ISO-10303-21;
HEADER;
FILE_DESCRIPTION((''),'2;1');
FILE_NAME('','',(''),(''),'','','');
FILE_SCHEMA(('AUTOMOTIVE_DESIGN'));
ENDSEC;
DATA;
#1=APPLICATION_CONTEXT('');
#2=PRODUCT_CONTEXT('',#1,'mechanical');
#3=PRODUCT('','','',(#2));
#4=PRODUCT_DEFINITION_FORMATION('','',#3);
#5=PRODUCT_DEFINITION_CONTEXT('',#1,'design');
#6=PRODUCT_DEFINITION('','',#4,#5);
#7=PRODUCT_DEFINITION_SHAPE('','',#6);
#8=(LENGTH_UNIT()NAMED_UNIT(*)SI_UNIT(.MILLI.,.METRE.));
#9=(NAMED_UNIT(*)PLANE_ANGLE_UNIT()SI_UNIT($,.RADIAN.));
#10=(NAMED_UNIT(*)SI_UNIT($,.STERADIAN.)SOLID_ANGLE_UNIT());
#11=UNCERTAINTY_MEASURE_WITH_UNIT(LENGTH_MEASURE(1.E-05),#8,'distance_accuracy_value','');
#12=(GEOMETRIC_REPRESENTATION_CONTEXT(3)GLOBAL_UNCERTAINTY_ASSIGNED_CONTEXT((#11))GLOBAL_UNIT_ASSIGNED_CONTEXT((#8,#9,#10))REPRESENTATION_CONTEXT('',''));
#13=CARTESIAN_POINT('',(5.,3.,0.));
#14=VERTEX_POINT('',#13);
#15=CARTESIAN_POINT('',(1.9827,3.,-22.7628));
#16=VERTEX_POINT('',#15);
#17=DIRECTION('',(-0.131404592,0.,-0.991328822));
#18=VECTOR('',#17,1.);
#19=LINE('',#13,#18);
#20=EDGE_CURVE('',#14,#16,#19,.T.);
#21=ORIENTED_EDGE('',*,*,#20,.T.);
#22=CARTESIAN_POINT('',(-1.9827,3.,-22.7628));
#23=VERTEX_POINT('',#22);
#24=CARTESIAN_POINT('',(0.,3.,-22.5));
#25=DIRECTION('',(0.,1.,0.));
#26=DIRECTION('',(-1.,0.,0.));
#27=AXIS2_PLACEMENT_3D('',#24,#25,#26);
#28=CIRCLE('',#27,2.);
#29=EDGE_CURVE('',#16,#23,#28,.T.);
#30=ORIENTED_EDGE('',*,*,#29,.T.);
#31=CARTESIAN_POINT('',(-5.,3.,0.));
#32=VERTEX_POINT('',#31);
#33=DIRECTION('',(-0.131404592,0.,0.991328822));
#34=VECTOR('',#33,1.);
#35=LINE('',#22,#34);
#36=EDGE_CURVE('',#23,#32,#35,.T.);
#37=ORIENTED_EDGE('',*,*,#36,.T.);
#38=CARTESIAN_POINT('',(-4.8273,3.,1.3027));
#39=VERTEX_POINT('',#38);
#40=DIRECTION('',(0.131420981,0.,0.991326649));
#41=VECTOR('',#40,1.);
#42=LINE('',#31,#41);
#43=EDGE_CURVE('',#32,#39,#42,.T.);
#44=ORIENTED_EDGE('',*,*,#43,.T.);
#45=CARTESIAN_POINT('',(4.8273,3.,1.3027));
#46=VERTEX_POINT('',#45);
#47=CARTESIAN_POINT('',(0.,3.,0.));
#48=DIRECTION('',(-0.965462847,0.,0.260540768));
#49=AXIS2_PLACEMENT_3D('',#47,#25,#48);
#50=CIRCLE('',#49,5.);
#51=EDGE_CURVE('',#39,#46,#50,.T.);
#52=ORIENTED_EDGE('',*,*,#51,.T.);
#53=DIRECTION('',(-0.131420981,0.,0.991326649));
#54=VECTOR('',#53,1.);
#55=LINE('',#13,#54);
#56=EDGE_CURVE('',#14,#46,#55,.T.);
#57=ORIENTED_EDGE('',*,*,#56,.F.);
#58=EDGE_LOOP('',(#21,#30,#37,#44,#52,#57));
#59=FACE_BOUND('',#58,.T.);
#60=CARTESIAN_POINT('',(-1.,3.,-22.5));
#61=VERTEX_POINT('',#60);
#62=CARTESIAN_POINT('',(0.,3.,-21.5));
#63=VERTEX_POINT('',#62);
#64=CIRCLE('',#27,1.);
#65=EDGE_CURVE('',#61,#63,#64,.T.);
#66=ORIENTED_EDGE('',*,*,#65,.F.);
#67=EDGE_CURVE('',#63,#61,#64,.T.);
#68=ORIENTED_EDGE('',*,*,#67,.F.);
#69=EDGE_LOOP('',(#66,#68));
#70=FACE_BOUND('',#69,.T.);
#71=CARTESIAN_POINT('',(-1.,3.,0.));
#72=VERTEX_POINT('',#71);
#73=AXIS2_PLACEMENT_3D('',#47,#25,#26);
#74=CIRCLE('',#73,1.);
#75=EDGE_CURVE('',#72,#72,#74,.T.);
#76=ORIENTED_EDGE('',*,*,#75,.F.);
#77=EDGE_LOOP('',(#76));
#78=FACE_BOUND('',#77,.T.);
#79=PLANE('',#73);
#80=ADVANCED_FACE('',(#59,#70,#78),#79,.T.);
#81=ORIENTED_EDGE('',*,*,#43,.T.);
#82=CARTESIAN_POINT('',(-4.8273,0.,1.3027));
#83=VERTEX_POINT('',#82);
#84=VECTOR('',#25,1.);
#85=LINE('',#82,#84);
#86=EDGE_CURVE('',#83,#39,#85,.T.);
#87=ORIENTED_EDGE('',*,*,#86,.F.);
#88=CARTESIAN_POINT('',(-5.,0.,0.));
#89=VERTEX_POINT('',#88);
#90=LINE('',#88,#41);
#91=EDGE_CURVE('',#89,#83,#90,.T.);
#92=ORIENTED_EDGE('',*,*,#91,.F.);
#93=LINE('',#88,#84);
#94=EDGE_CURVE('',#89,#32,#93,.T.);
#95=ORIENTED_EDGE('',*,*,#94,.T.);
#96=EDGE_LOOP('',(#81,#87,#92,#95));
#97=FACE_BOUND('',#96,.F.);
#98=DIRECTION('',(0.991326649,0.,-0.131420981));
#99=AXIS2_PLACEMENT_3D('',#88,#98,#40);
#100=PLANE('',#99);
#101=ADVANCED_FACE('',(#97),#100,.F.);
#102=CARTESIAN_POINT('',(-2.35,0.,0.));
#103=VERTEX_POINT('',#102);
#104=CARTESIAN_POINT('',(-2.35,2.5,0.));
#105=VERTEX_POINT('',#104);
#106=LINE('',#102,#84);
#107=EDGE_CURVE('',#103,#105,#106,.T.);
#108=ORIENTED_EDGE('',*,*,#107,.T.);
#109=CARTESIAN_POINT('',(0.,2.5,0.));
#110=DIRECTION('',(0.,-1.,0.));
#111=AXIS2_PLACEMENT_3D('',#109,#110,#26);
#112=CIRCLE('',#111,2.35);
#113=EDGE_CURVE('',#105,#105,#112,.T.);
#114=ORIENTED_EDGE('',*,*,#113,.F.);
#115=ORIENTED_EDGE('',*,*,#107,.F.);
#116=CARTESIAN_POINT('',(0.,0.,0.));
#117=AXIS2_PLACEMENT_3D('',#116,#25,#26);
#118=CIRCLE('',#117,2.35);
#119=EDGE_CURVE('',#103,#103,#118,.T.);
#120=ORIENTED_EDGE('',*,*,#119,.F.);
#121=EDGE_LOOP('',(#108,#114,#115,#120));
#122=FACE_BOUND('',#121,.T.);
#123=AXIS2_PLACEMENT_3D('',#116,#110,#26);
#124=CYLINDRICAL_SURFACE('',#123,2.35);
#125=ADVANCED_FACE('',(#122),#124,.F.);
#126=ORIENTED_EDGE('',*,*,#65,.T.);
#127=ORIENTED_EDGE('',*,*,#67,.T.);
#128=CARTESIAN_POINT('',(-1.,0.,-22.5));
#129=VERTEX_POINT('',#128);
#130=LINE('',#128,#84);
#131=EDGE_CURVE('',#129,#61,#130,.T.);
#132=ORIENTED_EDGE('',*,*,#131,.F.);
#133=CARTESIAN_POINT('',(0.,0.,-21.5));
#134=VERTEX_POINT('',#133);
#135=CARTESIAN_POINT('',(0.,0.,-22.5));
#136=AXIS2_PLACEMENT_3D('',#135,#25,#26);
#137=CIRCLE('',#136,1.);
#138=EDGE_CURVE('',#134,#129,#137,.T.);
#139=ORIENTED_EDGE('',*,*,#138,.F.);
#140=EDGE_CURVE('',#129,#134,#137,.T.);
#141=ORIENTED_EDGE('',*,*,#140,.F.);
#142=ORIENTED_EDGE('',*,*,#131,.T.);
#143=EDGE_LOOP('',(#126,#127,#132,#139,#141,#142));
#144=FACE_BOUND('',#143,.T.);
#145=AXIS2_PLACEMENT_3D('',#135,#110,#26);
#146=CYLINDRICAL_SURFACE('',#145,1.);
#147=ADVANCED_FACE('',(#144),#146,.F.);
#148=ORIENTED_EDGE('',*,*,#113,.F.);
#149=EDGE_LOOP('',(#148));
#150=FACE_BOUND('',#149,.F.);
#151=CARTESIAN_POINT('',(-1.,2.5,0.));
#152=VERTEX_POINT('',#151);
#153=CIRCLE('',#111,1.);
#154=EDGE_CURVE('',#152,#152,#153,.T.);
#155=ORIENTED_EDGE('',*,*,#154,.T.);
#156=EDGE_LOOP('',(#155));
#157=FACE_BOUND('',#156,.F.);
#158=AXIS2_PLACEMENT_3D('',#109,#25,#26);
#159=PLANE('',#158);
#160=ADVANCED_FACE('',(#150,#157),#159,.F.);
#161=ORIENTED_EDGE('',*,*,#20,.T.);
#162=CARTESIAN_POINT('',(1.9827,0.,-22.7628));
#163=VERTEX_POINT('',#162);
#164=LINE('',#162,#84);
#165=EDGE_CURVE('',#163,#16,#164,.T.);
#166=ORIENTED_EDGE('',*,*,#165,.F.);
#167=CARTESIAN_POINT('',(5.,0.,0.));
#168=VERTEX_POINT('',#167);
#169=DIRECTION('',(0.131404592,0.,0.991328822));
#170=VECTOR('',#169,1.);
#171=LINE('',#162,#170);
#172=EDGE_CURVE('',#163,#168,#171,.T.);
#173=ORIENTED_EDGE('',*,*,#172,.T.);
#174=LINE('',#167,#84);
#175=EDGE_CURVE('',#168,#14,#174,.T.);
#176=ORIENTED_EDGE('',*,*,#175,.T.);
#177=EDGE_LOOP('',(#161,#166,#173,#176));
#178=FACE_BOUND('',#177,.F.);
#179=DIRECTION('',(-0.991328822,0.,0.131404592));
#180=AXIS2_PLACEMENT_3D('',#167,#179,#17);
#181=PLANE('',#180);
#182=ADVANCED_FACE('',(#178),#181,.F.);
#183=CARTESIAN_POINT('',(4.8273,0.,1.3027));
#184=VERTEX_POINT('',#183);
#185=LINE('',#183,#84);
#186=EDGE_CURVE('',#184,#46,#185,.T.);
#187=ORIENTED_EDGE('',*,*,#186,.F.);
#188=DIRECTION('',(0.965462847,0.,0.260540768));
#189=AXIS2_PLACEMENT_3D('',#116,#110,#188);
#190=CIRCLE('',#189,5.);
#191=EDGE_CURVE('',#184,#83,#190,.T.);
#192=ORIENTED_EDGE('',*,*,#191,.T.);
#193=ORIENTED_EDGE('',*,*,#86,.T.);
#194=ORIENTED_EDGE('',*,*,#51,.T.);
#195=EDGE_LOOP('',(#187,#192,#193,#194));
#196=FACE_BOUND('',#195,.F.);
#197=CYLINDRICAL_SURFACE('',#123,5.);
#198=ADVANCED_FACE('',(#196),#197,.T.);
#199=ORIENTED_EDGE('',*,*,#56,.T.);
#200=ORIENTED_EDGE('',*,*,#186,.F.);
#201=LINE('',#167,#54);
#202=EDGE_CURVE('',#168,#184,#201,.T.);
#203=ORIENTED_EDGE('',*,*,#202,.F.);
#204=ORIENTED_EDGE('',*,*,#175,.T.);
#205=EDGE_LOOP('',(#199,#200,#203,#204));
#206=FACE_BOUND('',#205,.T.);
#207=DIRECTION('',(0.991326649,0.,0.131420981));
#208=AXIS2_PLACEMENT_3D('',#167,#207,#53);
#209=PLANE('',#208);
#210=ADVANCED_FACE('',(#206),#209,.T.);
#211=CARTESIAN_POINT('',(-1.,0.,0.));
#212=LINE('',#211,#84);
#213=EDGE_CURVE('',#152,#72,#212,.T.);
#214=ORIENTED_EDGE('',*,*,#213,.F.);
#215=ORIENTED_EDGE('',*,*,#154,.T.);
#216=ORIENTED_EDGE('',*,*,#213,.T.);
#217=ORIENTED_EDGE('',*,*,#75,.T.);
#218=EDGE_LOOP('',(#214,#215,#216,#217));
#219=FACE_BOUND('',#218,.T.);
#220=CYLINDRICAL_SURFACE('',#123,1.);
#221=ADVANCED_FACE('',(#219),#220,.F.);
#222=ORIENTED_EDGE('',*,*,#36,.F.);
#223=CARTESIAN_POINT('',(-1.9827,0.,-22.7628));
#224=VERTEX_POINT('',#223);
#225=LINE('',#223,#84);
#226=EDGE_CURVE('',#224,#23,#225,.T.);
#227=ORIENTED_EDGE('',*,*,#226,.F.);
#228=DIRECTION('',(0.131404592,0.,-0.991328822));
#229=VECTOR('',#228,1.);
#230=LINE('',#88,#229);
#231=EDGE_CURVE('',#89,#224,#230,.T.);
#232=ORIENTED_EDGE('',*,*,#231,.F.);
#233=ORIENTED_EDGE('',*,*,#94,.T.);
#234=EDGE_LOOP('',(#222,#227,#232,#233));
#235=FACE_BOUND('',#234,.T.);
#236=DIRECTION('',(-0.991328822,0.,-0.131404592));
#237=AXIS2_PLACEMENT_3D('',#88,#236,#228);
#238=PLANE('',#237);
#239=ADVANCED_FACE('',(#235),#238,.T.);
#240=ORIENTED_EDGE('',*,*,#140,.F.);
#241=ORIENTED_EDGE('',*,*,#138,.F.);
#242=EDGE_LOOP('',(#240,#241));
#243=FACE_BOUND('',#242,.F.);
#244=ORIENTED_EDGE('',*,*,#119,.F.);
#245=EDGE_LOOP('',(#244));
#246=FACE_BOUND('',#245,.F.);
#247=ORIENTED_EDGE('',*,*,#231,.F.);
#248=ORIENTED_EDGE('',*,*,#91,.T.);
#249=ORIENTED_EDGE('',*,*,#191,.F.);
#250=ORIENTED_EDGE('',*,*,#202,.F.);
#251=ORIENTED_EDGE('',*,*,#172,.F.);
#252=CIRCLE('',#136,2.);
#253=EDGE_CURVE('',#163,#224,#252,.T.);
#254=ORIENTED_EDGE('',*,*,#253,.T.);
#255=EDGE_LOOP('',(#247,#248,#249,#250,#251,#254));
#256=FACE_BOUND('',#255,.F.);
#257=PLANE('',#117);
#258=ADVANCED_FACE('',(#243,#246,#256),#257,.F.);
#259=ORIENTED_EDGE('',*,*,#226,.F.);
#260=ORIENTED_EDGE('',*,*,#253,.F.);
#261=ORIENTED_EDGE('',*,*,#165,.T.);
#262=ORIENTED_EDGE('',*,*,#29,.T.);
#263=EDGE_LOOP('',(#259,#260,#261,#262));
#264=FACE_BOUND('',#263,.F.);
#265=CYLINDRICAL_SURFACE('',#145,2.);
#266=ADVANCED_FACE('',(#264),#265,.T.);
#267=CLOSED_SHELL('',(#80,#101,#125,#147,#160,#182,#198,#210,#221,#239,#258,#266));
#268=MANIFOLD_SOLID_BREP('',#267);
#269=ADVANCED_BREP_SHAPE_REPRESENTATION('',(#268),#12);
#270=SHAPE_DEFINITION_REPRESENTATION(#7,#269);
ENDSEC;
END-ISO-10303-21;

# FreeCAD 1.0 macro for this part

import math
import FreeCAD as App
import Part
import Sketcher

doc = App.newDocument("Part")
body = doc.addObject("PartDesign::Body", "Body")

# Sketch on XZ plane
sketch1 = body.newObject("Sketcher::SketchObject", "Sketch")
sketch1.AttachmentSupport = (doc.getObject("XZ_Plane"), [""])
sketch1.MapMode = "FlatFace"
sketch1.addGeometry(Part.ArcOfCircle(Part.Circle(App.Vector(0, 0, 0), App.Vector(0, 0, 1), 5), math.radians(15.102152), math.radians(164.897848)), False)
sketch1.addGeometry(Part.LineSegment(App.Vector(4.8273, 1.3027, 0), App.Vector(5, 0, 0)), False)
sketch1.addGeometry(Part.LineSegment(App.Vector(5, 0, 0), App.Vector(1.9827, -22.7628, 0)), False)
sketch1.addGeometry(Part.ArcOfCircle(Part.Circle(App.Vector(0, -22.5, 0), App.Vector(0, 0, 1), 2), math.radians(-172.449654), math.radians(-7.550346)), False)
sketch1.addGeometry(Part.LineSegment(App.Vector(-1.9827, -22.7628, 0), App.Vector(-5, 0, 0)), False)
sketch1.addGeometry(Part.LineSegment(App.Vector(-5, 0, 0), App.Vector(-4.8273, 1.3027, 0)), False)
sketch1.addGeometry(Part.Circle(App.Vector(0, 0, 0), App.Vector(0, 0, 1), 1), False)
sketch1.addGeometry(Part.Circle(App.Vector(0, -22.5, 0), App.Vector(0, 0, 1), 1), False)
sketch1.addConstraint(Sketcher.Constraint("Coincident", 0, 1, 1, 1))
sketch1.addConstraint(Sketcher.Constraint("Coincident", 1, 2, 2, 1))
sketch1.addConstraint(Sketcher.Constraint("Tangent", 2, 2, 3, 2))
sketch1.addConstraint(Sketcher.Constraint("Tangent", 3, 1, 4, 1))
sketch1.addConstraint(Sketcher.Constraint("Coincident", 4, 2, 5, 1))
sketch1.addConstraint(Sketcher.Constraint("Coincident", 5, 2, 0, 2))
sketch1.addConstraint(Sketcher.Constraint("Coincident", 0, 3, -1, 1))
sketch1.addConstraint(Sketcher.Constraint("Coincident", 6, 3, -1, 1))
sketch1.addConstraint(Sketcher.Constraint("Coincident", 7, 3, 3, 3))
sketch1.addConstraint(Sketcher.Constraint("Equal", 6, 7))
sketch1.addConstraint(Sketcher.Constraint("Symmetric", 1, 2, 4, 2, -1, 1))
sketch1.addConstraint(Sketcher.Constraint("Symmetric", 2, 2, 3, 1, -2))
sketch1.addConstraint(Sketcher.Constraint("Parallel", 1, 4))
sketch1.addConstraint(Sketcher.Constraint("Parallel", 2, 5))
sketch1.addConstraint(Sketcher.Constraint("Diameter", 6, 2.0))
sketch1.addConstraint(Sketcher.Constraint("Radius", 0, 5.0))
sketch1.addConstraint(Sketcher.Constraint("Radius", 3, 2.0))
sketch1.addConstraint(Sketcher.Constraint("DistanceX", 4, 2, 1, 2, 10.0))
sketch1.addConstraint(Sketcher.Constraint("DistanceY", 3, 3, -1, 1, 22.5))
pad1 = body.newObject("PartDesign::Pad", "Pad")
pad1.Profile = sketch1
pad1.Length = 3
pad1.Reversed = True

# Sketch on XZ plane
sketch2 = body.newObject("Sketcher::SketchObject", "Sketch001")
sketch2.AttachmentSupport = (doc.getObject("XZ_Plane"), [""])
sketch2.MapMode = "FlatFace"
sketch2.addGeometry(Part.Circle(App.Vector(0, 0, 0), App.Vector(0, 0, 1), 2.35), False)
sketch2.addGeometry(Part.Circle(App.Vector(0, 0, 0), App.Vector(0, 0, 1), 1), False)
sketch2.addConstraint(Sketcher.Constraint("Coincident", 0, 3, -1, 1))
sketch2.addConstraint(Sketcher.Constraint("Coincident", 1, 3, -1, 1))
sketch2.addConstraint(Sketcher.Constraint("Diameter", 1, 2.0))
sketch2.addConstraint(Sketcher.Constraint("Diameter", 0, 4.7))
pocket1 = body.newObject("PartDesign::Pocket", "Pocket")
pocket1.Profile = sketch2
pocket1.Length = 2.5

doc.recompute()
